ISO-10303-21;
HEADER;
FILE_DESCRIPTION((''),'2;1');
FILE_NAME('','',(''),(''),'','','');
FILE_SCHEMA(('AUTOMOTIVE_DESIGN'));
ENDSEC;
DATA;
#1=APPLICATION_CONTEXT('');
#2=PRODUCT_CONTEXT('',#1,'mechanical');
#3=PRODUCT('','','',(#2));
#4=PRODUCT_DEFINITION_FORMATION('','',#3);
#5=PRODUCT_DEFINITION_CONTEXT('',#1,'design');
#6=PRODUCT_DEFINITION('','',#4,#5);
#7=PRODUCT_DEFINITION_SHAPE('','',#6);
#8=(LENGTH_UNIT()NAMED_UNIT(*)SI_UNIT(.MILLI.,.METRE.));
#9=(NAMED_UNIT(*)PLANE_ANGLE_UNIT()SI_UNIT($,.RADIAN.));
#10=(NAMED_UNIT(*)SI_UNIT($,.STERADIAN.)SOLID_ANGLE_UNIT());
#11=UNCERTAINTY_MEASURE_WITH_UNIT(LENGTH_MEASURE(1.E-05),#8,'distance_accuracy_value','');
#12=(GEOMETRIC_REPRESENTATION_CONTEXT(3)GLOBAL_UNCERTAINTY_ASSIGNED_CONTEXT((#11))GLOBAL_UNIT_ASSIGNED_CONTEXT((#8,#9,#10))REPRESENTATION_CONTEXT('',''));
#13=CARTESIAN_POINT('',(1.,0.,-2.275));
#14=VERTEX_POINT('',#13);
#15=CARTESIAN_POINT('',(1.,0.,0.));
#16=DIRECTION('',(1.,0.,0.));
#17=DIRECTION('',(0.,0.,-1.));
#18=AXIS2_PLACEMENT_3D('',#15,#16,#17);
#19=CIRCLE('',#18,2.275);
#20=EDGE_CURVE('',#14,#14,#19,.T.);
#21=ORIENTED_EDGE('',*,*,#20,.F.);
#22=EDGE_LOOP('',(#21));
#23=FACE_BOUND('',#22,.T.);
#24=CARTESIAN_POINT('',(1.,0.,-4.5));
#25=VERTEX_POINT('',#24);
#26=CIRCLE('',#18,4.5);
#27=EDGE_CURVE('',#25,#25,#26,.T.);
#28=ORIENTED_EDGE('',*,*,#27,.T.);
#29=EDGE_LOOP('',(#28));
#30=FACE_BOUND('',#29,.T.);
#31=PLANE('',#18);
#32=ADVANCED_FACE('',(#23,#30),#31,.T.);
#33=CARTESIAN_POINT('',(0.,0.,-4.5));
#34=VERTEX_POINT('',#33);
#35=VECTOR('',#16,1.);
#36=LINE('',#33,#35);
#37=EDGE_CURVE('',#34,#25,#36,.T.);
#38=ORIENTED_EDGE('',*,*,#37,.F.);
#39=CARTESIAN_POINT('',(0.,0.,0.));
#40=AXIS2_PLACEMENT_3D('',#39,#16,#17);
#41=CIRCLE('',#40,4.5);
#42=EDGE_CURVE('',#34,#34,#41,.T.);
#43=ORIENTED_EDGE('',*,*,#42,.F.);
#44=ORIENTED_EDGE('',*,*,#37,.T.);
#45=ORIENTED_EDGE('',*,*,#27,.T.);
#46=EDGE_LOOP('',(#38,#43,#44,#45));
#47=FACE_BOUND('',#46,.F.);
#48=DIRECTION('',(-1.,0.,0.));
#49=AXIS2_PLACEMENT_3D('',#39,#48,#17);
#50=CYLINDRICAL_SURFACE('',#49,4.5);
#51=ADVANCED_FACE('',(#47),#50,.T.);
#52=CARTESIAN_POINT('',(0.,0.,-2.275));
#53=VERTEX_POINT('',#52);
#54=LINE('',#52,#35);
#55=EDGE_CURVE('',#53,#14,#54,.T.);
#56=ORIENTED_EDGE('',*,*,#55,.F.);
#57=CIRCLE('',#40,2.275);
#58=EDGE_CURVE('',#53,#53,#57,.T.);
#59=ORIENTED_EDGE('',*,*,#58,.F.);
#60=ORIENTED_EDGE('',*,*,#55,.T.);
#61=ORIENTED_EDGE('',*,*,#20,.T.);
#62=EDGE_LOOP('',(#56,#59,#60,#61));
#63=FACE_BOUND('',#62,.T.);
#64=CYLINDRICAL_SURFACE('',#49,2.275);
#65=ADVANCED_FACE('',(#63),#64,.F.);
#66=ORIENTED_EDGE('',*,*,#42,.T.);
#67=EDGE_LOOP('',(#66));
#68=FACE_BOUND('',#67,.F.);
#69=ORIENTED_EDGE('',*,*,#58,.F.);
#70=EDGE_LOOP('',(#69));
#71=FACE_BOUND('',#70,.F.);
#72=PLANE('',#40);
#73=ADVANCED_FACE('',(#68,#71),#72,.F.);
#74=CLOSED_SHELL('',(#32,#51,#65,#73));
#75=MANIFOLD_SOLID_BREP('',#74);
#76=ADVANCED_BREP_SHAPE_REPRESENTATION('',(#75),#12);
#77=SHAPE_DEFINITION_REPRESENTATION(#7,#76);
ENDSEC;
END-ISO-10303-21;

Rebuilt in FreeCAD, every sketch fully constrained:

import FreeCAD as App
import Part
import Sketcher

V = App.Vector

doc = App.newDocument("Part")
body = doc.addObject("PartDesign::Body", "Body")

sketch1 = body.newObject("Sketcher::SketchObject", "Sketch")
sketch1.AttachmentSupport = (doc.getObject("YZ_Plane"), [""])
sketch1.MapMode = "FlatFace"
sketch1.addGeometry([
    Part.Circle(V(0, 0, 0), V(0, 0, 1), 4.5),
    Part.Circle(V(0, 0, 0), V(0, 0, 1), 2.275),
], False)
sketch1.addConstraint([
    Sketcher.Constraint("Coincident", 0, 3, -1, 1),
    Sketcher.Constraint("Coincident", 1, 3, -1, 1),
    Sketcher.Constraint("Diameter", 0, 9.0),
    Sketcher.Constraint("Diameter", 1, 4.55),
])
pad1 = body.newObject("PartDesign::Pad", "Pad")
pad1.Profile = sketch1
pad1.Length = 1

doc.recompute()
